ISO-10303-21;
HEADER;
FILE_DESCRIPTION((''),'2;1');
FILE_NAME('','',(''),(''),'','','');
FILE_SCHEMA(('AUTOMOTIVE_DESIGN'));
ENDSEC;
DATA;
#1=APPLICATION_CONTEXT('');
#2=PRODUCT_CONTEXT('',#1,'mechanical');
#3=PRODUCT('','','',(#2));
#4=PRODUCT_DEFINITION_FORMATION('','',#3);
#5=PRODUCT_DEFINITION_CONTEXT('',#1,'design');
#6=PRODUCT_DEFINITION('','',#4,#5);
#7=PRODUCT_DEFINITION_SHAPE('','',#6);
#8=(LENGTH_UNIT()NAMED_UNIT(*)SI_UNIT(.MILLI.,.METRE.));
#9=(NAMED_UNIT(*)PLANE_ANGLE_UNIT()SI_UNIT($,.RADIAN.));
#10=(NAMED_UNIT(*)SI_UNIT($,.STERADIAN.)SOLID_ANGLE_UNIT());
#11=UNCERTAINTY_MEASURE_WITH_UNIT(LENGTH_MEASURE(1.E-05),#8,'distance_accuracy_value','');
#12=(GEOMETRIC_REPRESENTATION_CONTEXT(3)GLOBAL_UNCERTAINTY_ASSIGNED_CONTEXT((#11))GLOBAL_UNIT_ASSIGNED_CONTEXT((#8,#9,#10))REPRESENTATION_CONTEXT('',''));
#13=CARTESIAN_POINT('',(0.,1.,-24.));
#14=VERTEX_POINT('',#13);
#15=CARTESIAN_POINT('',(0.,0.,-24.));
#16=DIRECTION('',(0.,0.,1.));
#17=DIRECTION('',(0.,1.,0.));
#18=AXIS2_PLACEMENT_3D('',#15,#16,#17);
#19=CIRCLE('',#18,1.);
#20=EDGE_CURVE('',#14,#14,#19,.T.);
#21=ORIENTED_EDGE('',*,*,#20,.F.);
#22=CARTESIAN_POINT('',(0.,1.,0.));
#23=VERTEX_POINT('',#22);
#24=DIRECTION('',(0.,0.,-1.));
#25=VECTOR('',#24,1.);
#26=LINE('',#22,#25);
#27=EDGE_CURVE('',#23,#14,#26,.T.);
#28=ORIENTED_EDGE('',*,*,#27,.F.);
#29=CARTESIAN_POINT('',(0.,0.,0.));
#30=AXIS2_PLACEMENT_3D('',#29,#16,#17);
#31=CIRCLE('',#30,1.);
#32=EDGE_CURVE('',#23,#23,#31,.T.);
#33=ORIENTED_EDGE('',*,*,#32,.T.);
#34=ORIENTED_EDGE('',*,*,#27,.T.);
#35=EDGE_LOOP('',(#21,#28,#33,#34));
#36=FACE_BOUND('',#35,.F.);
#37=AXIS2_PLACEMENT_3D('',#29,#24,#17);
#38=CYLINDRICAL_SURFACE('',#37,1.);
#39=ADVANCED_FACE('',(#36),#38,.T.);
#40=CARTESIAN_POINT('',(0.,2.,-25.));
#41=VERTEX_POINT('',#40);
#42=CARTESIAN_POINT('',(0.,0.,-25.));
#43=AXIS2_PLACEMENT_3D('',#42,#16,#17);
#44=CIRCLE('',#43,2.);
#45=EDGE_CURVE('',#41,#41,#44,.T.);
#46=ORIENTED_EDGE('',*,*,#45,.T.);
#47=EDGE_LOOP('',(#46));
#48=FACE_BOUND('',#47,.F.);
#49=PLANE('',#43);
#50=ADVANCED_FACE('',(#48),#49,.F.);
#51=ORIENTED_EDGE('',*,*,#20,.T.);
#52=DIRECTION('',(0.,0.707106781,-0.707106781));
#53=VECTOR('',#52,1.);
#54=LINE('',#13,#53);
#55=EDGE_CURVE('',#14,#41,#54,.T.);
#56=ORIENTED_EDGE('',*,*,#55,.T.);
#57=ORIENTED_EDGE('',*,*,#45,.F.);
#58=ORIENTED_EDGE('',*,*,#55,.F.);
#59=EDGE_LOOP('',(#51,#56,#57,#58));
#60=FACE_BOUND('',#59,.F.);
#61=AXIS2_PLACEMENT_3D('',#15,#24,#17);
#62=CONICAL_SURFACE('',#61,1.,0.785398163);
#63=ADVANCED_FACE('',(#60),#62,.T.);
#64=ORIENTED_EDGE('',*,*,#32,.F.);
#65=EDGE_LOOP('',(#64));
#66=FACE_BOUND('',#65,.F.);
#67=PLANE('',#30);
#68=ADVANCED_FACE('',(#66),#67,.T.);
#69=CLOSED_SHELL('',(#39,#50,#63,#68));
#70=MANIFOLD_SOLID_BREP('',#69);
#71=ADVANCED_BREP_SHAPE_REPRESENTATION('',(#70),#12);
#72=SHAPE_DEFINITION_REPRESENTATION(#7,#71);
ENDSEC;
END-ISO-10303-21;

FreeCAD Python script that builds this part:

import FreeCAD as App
import Part
import Sketcher
from FreeCAD import Vector
Q = App.Units.Quantity


def add_polygon(sketch, points):
    """Adds a closed chain of lines whose ends are joined by coincident constraints."""
    first, n = sketch.GeometryCount, len(points)
    for a, b in zip(points, points[1:] + points[:1]):
        sketch.addGeometry(Part.LineSegment(App.Vector(*a, 0), App.Vector(*b, 0)), False)
    for i in range(n):
        sketch.addConstraint(Sketcher.Constraint("Coincident", first + i, 2, first + (i + 1) % n, 1))

doc = App.newDocument("Part")
body = doc.addObject("PartDesign::Body", "Body")

# Sketch on YZ plane
sketch1 = body.newObject("Sketcher::SketchObject", "Sketch")
sketch1.AttachmentSupport = (doc.getObject("YZ_Plane"), [""])
sketch1.MapMode = "FlatFace"
add_polygon(sketch1, [(1, 0), (0, 0), (0, -25), (2, -25), (1, -24)])  # lines 0-4
sketch1.addConstraint([
    Sketcher.Constraint("Horizontal", 0),
    Sketcher.Constraint("Vertical", 1),
    Sketcher.Constraint("Horizontal", 2),
    Sketcher.Constraint("Vertical", 4),
    Sketcher.Constraint("Coincident", 0, 2, -1, 1),
    Sketcher.Constraint("DistanceX", 0, 2, 0, 1, Q("1 mm")),
    Sketcher.Constraint("DistanceX", 2, 1, 2, 2, Q("2 mm")),
    Sketcher.Constraint("DistanceY", 1, 2, 1, 1, Q("25 mm")),
    Sketcher.Constraint("DistanceY", 4, 1, 4, 2, Q("24 mm")),
])
revolution = body.newObject("PartDesign::Revolution", "Revolution")
revolution.Profile = sketch1
revolution.ReferenceAxis = (sketch1, ["V_Axis"])
revolution.Angle = 360

doc.recompute()
